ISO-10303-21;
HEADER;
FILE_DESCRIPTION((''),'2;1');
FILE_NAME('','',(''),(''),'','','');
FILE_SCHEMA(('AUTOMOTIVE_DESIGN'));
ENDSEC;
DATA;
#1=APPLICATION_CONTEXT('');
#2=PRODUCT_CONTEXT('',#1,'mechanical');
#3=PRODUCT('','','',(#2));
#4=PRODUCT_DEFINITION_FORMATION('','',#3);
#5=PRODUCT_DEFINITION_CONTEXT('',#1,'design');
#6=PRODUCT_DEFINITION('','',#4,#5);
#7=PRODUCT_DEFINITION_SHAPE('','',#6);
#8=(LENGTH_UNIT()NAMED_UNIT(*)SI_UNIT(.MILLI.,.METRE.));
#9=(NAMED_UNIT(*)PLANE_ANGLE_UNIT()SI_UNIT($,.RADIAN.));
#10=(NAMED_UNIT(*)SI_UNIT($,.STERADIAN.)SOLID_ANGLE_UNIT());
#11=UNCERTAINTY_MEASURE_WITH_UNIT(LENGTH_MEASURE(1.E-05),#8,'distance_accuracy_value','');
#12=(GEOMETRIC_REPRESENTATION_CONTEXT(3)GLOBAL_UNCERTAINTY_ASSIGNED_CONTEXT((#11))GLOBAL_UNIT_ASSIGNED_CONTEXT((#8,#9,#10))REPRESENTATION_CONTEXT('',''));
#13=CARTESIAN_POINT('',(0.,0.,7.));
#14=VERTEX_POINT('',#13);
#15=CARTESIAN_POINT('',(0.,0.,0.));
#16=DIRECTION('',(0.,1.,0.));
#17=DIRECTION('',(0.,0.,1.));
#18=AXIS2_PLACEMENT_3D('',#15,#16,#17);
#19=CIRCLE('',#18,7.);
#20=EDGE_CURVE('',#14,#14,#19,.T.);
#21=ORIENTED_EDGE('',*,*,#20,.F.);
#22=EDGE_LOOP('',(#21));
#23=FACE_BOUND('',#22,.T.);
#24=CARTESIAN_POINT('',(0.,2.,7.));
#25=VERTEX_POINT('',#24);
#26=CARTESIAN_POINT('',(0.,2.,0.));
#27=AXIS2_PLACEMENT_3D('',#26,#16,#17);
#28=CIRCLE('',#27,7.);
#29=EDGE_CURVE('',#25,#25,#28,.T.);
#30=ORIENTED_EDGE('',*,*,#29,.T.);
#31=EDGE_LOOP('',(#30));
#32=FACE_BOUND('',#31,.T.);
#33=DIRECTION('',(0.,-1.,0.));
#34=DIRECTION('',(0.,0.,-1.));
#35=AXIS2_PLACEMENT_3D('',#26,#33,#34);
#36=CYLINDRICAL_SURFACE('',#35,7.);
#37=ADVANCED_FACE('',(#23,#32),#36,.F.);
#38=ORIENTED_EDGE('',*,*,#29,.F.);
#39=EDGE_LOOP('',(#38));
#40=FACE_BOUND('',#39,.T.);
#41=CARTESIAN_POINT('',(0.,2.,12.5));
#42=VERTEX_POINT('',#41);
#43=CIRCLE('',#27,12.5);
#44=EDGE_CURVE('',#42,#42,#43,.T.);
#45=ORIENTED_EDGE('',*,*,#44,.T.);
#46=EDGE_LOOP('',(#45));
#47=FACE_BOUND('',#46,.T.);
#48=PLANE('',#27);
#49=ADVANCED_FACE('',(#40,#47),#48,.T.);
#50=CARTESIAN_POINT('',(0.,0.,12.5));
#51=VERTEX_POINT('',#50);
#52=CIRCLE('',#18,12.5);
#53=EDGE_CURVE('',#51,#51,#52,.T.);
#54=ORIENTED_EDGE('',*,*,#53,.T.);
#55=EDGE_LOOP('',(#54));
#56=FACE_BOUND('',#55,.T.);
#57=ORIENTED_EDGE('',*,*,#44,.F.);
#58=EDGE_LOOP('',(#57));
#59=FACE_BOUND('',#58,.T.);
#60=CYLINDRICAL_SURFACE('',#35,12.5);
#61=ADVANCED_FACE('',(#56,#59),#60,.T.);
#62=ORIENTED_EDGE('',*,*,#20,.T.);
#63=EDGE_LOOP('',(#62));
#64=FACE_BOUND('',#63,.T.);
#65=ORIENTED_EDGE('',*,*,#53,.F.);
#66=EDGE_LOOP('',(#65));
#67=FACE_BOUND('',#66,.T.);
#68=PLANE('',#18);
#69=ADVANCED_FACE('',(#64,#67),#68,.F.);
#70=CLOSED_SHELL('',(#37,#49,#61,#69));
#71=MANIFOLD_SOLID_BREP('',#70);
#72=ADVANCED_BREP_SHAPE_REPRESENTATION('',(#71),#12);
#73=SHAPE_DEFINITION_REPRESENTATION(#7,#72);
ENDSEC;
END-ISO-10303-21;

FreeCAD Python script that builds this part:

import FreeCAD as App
import Part
import Sketcher

V = App.Vector
Q = App.Units.Quantity

doc = App.newDocument("Part")
params = doc.addObject("Spreadsheet::Sheet", "Params")
for row, (alias, value) in enumerate([
    ("sketch1_diameter", "25 mm"),
    ("sketch1_diameter2", "14 mm"),
    ("pad1_length", "2 mm"),
], start=1):
    params.set(f"A{row}", alias)
    params.set(f"B{row}", "=" + value)
    params.setAlias(f"B{row}", alias)

body = doc.addObject("PartDesign::Body", "Body")

sketch1 = body.newObject("Sketcher::SketchObject", "Sketch")
sketch1.AttachmentSupport = (doc.getObject("XZ_Plane"), [""])
sketch1.MapMode = "FlatFace"
sketch1.addGeometry([
    Part.Circle(V(0, 0, 0), V(0, 0, 1), 12.5),
    Part.Circle(V(0, 0, 0), V(0, 0, 1), 7),
], False)
sketch1.addConstraint([
    Sketcher.Constraint("Coincident", 0, 3, -1, 1),
    Sketcher.Constraint("Coincident", 1, 3, -1, 1),
    Sketcher.Constraint("Diameter", 0, Q("25 mm")),
    Sketcher.Constraint("Diameter", 1, Q("14 mm")),
])
sketch1.setExpression("Constraints[2]", "Params.sketch1_diameter")
sketch1.setExpression("Constraints[3]", "Params.sketch1_diameter2")
pad1 = body.newObject("PartDesign::Pad", "Pad")
pad1.Profile = sketch1
pad1.setExpression("Length", "Params.pad1_length")
pad1.Reversed = True

doc.recompute()
